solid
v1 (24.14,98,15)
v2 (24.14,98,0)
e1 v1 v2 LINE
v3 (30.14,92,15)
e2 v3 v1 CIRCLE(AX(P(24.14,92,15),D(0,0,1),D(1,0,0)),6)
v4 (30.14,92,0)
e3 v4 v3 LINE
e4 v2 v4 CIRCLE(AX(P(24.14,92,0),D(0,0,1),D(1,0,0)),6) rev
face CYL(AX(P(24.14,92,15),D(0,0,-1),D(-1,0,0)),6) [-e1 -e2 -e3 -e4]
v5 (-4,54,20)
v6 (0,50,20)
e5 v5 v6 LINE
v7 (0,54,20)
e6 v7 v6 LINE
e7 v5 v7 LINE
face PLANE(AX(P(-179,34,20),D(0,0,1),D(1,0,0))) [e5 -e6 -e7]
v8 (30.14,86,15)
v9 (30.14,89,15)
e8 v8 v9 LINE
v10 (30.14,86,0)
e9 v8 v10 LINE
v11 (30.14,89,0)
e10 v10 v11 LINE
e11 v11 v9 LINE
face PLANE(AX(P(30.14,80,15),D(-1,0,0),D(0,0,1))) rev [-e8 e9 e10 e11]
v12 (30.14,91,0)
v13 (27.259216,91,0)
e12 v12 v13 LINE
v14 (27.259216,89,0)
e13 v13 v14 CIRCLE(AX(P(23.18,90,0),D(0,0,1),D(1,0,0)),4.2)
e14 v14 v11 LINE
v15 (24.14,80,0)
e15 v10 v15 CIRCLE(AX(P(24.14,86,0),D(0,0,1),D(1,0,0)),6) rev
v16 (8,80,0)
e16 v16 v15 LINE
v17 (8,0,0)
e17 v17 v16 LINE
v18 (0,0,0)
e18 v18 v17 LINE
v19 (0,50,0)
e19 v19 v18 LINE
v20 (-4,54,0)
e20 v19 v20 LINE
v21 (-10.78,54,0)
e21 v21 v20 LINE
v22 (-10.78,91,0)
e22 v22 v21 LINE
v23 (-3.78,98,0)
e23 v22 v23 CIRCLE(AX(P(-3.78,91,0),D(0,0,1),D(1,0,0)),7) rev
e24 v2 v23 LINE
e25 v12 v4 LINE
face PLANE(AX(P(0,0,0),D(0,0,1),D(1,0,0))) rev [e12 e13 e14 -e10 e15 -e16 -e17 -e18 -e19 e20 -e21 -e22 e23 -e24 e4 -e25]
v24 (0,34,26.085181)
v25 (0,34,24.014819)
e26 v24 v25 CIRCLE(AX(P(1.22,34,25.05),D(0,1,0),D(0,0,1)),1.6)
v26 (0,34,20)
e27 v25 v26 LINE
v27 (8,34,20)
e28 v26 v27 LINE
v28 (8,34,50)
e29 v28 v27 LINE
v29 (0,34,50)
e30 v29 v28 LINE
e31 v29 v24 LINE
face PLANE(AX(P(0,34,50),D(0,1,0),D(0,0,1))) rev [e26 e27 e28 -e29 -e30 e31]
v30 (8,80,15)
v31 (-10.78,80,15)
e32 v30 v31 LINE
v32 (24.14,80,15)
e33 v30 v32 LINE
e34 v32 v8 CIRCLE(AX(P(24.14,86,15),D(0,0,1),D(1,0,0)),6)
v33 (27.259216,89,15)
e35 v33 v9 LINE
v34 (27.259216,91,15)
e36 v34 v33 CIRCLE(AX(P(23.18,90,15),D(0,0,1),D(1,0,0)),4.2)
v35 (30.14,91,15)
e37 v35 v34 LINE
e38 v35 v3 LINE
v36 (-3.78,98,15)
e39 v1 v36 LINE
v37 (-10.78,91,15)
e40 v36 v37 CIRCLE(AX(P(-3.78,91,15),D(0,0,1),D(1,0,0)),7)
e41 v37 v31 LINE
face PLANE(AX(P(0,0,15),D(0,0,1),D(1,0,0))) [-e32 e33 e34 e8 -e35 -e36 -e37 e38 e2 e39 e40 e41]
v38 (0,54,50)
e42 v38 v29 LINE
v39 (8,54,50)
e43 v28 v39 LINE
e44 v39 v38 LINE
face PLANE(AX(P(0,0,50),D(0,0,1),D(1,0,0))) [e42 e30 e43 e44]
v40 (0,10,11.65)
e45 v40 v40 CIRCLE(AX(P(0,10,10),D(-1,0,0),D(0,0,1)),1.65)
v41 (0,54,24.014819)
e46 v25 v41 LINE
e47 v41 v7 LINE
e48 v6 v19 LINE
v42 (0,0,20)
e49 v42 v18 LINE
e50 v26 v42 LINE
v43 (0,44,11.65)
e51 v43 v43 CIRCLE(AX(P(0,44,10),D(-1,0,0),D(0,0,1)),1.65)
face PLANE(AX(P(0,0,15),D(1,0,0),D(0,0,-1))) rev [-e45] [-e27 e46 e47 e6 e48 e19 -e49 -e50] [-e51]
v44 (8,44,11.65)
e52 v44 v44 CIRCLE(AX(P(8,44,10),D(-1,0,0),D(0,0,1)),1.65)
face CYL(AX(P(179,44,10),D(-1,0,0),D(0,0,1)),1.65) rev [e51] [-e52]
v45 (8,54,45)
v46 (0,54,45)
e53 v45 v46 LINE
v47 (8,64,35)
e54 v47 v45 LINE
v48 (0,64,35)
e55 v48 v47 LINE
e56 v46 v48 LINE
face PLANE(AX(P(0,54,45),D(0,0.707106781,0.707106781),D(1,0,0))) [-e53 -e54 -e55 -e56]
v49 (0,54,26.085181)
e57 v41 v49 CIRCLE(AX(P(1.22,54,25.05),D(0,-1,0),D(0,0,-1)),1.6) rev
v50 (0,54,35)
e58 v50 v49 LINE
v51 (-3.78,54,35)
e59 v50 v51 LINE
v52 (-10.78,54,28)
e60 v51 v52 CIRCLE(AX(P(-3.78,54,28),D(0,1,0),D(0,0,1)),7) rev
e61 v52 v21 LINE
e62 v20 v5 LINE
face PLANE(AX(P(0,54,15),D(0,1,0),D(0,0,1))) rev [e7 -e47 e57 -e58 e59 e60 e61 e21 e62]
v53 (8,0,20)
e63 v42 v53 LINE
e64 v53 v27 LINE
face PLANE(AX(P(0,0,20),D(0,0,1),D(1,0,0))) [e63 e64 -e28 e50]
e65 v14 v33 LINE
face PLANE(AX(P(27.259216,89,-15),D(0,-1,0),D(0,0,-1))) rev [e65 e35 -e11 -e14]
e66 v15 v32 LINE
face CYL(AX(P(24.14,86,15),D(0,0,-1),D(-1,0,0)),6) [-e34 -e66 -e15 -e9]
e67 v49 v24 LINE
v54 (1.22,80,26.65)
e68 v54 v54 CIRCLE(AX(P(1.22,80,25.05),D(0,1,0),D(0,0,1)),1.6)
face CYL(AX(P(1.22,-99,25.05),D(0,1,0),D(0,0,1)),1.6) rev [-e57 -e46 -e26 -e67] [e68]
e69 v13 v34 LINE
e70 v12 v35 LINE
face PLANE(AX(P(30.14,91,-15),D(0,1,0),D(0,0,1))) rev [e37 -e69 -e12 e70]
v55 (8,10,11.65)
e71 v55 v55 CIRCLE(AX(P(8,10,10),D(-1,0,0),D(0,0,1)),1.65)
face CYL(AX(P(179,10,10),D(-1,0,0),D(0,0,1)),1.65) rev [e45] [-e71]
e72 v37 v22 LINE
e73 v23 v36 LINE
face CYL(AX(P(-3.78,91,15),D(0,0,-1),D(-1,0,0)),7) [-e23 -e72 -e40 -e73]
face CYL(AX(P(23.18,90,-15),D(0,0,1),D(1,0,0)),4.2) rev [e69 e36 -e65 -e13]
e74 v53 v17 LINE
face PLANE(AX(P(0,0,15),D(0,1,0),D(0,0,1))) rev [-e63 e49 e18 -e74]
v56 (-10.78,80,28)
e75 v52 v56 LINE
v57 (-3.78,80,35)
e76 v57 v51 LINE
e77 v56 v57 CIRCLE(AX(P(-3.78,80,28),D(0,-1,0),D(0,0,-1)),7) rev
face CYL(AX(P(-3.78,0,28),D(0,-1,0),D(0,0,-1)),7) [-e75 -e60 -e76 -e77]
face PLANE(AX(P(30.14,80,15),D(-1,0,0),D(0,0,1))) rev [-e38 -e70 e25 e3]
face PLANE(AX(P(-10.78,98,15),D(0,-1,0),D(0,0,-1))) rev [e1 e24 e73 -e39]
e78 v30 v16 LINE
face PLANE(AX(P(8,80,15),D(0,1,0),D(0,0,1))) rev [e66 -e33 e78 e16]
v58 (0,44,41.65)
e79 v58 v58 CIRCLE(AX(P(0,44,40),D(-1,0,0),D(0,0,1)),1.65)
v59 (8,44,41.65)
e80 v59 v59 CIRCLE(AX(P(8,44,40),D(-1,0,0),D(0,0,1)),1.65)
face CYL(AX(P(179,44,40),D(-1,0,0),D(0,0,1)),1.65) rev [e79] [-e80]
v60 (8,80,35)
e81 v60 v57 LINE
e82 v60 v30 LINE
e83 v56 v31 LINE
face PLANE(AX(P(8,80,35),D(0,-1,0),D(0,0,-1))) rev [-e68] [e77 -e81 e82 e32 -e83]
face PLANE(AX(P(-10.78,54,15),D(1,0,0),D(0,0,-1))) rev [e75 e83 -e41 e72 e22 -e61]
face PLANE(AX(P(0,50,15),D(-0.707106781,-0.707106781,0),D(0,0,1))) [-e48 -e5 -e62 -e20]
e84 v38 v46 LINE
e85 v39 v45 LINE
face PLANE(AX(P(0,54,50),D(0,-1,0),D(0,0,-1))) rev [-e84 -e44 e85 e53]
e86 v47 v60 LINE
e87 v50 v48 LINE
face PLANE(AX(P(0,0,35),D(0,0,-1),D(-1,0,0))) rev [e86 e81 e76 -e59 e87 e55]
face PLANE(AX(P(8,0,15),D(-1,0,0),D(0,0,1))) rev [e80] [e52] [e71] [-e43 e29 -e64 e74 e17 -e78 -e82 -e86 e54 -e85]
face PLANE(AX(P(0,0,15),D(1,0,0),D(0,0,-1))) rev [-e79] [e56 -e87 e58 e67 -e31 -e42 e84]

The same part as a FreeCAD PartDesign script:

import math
import FreeCAD as App
import Part
import Sketcher


def edges_at(feature, points):
    """Names of the edges that pass closest to the given points."""
    edges = feature.Shape.Edges
    near = lambda p: min(range(len(edges)), key=lambda i: edges[i].distToShape(Part.Vertex(*p))[0])
    return sorted({f"Edge{near(p) + 1}" for p in points})


def add_polygon(sketch, points):
    """Adds a closed chain of lines whose ends are joined by coincident constraints."""
    first, n = sketch.GeometryCount, len(points)
    for a, b in zip(points, points[1:] + points[:1]):
        sketch.addGeometry(Part.LineSegment(App.Vector(*a, 0), App.Vector(*b, 0)), False)
    for i in range(n):
        sketch.addConstraint(Sketcher.Constraint("Coincident", first + i, 2, first + (i + 1) % n, 1))

doc = App.newDocument("Part")
body = doc.addObject("PartDesign::Body", "Body")

# Sketch on XY plane
sketch1 = body.newObject("Sketcher::SketchObject", "Sketch")
sketch1.AttachmentSupport = (doc.getObject("XY_Plane"), [""])
sketch1.MapMode = "FlatFace"
add_polygon(sketch1, [(0, 0), (8, 0), (8, 80), (30.14, 80), (30.14, 98), (-10.78, 98), (-10.78, 54), (0, 54)])  # lines 0-7
sketch1.addConstraint(Sketcher.Constraint("Horizontal", 0))
sketch1.addConstraint(Sketcher.Constraint("Vertical", 1))
sketch1.addConstraint(Sketcher.Constraint("Horizontal", 2))
sketch1.addConstraint(Sketcher.Constraint("Vertical", 3))
sketch1.addConstraint(Sketcher.Constraint("Horizontal", 4))
sketch1.addConstraint(Sketcher.Constraint("Vertical", 5))
sketch1.addConstraint(Sketcher.Constraint("Horizontal", 6))
sketch1.addConstraint(Sketcher.Constraint("Vertical", 7))
sketch1.addConstraint(Sketcher.Constraint("Coincident", 7, 2, -1, 1))
sketch1.addConstraint(Sketcher.Constraint("DistanceX", 0, 1, 0, 2, 8.0))
sketch1.addConstraint(Sketcher.Constraint("DistanceY", 1, 1, 1, 2, 80.0))
sketch1.addConstraint(Sketcher.Constraint("DistanceY", 3, 1, 3, 2, 18.0))
sketch1.addConstraint(Sketcher.Constraint("DistanceY", 5, 2, 5, 1, 44.0))
sketch1.addConstraint(Sketcher.Constraint("DistanceX", 2, 1, 2, 2, 22.14))
sketch1.addConstraint(Sketcher.Constraint("DistanceX", 4, 2, 4, 1, 40.92))
pad1 = body.newObject("PartDesign::Pad", "Pad")
pad1.Profile = sketch1
pad1.Length = 15

# Sketch on XY plane
sketch2 = body.newObject("Sketcher::SketchObject", "Sketch001")
sketch2.AttachmentSupport = (doc.getObject("XY_Plane"), [""])
sketch2.MapMode = "FlatFace"
sketch2.AttachmentOffset = App.Placement(App.Vector(0, 0, 15), App.Rotation())
add_polygon(sketch2, [(-10.78, 80), (-10.78, 54), (8, 54), (8, 80)])  # lines 0-3
sketch2.addConstraint(Sketcher.Constraint("Vertical", 0))
sketch2.addConstraint(Sketcher.Constraint("Horizontal", 1))
sketch2.addConstraint(Sketcher.Constraint("Vertical", 2))
sketch2.addConstraint(Sketcher.Constraint("Horizontal", 3))
sketch2.addConstraint(Sketcher.Constraint("DistanceY", 0, 2, 0, 1, 26.0))
sketch2.addConstraint(Sketcher.Constraint("DistanceY", -1, 1, 0, 2, 54.0))
sketch2.addConstraint(Sketcher.Constraint("DistanceX", -1, 1, 1, 2, 8.0))
sketch2.addConstraint(Sketcher.Constraint("DistanceX", 1, 1, 1, 2, 18.78))
pad2 = body.newObject("PartDesign::Pad", "Pad001")
pad2.Profile = sketch2
pad2.Length = 20

# Sketch on XY plane
sketch3 = body.newObject("Sketcher::SketchObject", "Sketch002")
sketch3.AttachmentSupport = (doc.getObject("XY_Plane"), [""])
sketch3.MapMode = "FlatFace"
sketch3.AttachmentOffset = App.Placement(App.Vector(0, 0, 15), App.Rotation())
add_polygon(sketch3, [(0, 54), (0, 0), (8, 0), (8, 54)])  # lines 0-3
sketch3.addConstraint(Sketcher.Constraint("Vertical", 0))
sketch3.addConstraint(Sketcher.Constraint("Horizontal", 1))
sketch3.addConstraint(Sketcher.Constraint("Vertical", 2))
sketch3.addConstraint(Sketcher.Constraint("Horizontal", 3))
sketch3.addConstraint(Sketcher.Constraint("Coincident", 0, 2, -1, 1))
sketch3.addConstraint(Sketcher.Constraint("DistanceX", 1, 1, 1, 2, 8.0))
sketch3.addConstraint(Sketcher.Constraint("DistanceY", 0, 2, 0, 1, 54.0))
pad3 = body.newObject("PartDesign::Pad", "Pad002")
pad3.Profile = sketch3
pad3.Length = 5

# Sketch on XY plane
sketch4 = body.newObject("Sketcher::SketchObject", "Sketch003")
sketch4.AttachmentSupport = (doc.getObject("XY_Plane"), [""])
sketch4.MapMode = "FlatFace"
sketch4.AttachmentOffset = App.Placement(App.Vector(0, 0, 20), App.Rotation())
add_polygon(sketch4, [(0, 54), (0, 34), (8, 34), (8, 54)])  # lines 0-3
sketch4.addConstraint(Sketcher.Constraint("Vertical", 0))
sketch4.addConstraint(Sketcher.Constraint("Horizontal", 1))
sketch4.addConstraint(Sketcher.Constraint("Vertical", 2))
sketch4.addConstraint(Sketcher.Constraint("Horizontal", 3))
sketch4.addConstraint(Sketcher.Constraint("PointOnObject", 0, 2, -2))
sketch4.addConstraint(Sketcher.Constraint("DistanceX", 1, 1, 1, 2, 8.0))
sketch4.addConstraint(Sketcher.Constraint("DistanceY", 0, 2, 0, 1, 20.0))
sketch4.addConstraint(Sketcher.Constraint("DistanceY", -1, 1, 0, 2, 34.0))
pad4 = body.newObject("PartDesign::Pad", "Pad003")
pad4.Profile = sketch4
pad4.Length = 30

# Sketch on XY plane
sketch5 = body.newObject("Sketcher::SketchObject", "Sketch004")
sketch5.AttachmentSupport = (doc.getObject("XY_Plane"), [""])
sketch5.MapMode = "FlatFace"
sketch5.AttachmentOffset = App.Placement(App.Vector(0, 0, 15), App.Rotation())
sketch5.addGeometry(Part.LineSegment(App.Vector(30.14, 91, 0), App.Vector(27.259216, 91, 0)), False)
sketch5.addGeometry(Part.ArcOfCircle(Part.Circle(App.Vector(23.18, 90, 0), App.Vector(0, 0, 1), 4.2), math.radians(13.774147), math.radians(346.225853)), False)
sketch5.addGeometry(Part.LineSegment(App.Vector(27.259216, 89, 0), App.Vector(30.14, 89, 0)), False)
sketch5.addGeometry(Part.LineSegment(App.Vector(30.14, 89, 0), App.Vector(30.14, 91, 0)), False)
sketch5.addConstraint(Sketcher.Constraint("Coincident", 0, 2, 1, 1))
sketch5.addConstraint(Sketcher.Constraint("Coincident", 1, 2, 2, 1))
sketch5.addConstraint(Sketcher.Constraint("Coincident", 2, 2, 3, 1))
sketch5.addConstraint(Sketcher.Constraint("Coincident", 3, 2, 0, 1))
sketch5.addConstraint(Sketcher.Constraint("Horizontal", 0))
sketch5.addConstraint(Sketcher.Constraint("Horizontal", 2))
sketch5.addConstraint(Sketcher.Constraint("Vertical", 3))
sketch5.addConstraint(Sketcher.Constraint("Vertical", 0, 2, 1, 2))
sketch5.addConstraint(Sketcher.Constraint("Radius", 1, 4.2))
sketch5.addConstraint(Sketcher.Constraint("DistanceY", 3, 1, 3, 2, 2.0))
sketch5.addConstraint(Sketcher.Constraint("DistanceY", -1, 1, 1, 3, 90.0))
sketch5.addConstraint(Sketcher.Constraint("DistanceX", -1, 1, 1, 3, 23.18))
sketch5.addConstraint(Sketcher.Constraint("DistanceX", -1, 1, 2, 2, 30.14))
pocket1 = body.newObject("PartDesign::Pocket", "Pocket")
pocket1.Profile = sketch5
pocket1.Length = 30
doc.recompute()

fillet = body.newObject("PartDesign::Fillet", "Fillet")
fillet.Base = (pocket1, edges_at(pocket1, [(30.14, 98, 7.5)]))
fillet.Radius = 6
doc.recompute()

fillet2 = body.newObject("PartDesign::Fillet", "Fillet001")
fillet2.Base = (fillet, edges_at(fillet, [(30.14, 80, 7.5)]))
fillet2.Radius = 6
doc.recompute()

fillet3 = body.newObject("PartDesign::Fillet", "Fillet002")
fillet3.Base = (fillet2, edges_at(fillet2, [(-10.78, 98, 7.5)]))
fillet3.Radius = 7
doc.recompute()

fillet4 = body.newObject("PartDesign::Fillet", "Fillet003")
fillet4.Base = (fillet3, edges_at(fillet3, [(-10.78, 67, 35)]))
fillet4.Radius = 7
doc.recompute()

chamfer = body.newObject("PartDesign::Chamfer", "Chamfer")
chamfer.Base = (fillet4, edges_at(fillet4, [(4, 54, 35)]))
chamfer.Size = 10
doc.recompute()

chamfer2 = body.newObject("PartDesign::Chamfer", "Chamfer001")
chamfer2.Base = (chamfer, edges_at(chamfer, [(0, 54, 17.5)]))
chamfer2.Size = 4

# Sketch on XZ plane
sketch6 = body.newObject("Sketcher::SketchObject", "Sketch005")
sketch6.AttachmentSupport = (doc.getObject("XZ_Plane"), [""])
sketch6.MapMode = "FlatFace"
sketch6.AttachmentOffset = App.Placement(App.Vector(0, 0, -80), App.Rotation())
sketch6.addGeometry(Part.Circle(App.Vector(1.22, 25.05, 0), App.Vector(0, 0, 1), 1.6), False)
sketch6.addConstraint(Sketcher.Constraint("Diameter", 0, 3.2))
sketch6.addConstraint(Sketcher.Constraint("DistanceX", -1, 1, 0, 3, 1.22))
sketch6.addConstraint(Sketcher.Constraint("DistanceY", -1, 1, 0, 3, 25.05))
pocket2 = body.newObject("PartDesign::Pocket", "Pocket001")
pocket2.Profile = sketch6
pocket2.Length = 179
pocket2.Reversed = True

# Sketch on YZ plane
sketch7 = body.newObject("Sketcher::SketchObject", "Sketch006")
sketch7.AttachmentSupport = (doc.getObject("YZ_Plane"), [""])
sketch7.MapMode = "FlatFace"
add_polygon(sketch7, [(54, 20), (34, 20), (34, 40.537192), (54, 40.537192)])  # lines 0-3
sketch7.addConstraint(Sketcher.Constraint("Horizontal", 0))
sketch7.addConstraint(Sketcher.Constraint("Vertical", 1))
sketch7.addConstraint(Sketcher.Constraint("Horizontal", 2))
sketch7.addConstraint(Sketcher.Constraint("Vertical", 3))
sketch7.addConstraint(Sketcher.Constraint("DistanceX", 0, 2, 0, 1, 20.0))
sketch7.addConstraint(Sketcher.Constraint("DistanceX", -1, 1, 0, 2, 34.0))
sketch7.addConstraint(Sketcher.Constraint("DistanceY", -1, 1, 0, 2, 20.0))
sketch7.addConstraint(Sketcher.Constraint("DistanceY", 1, 1, 1, 2, 20.537192))
pocket3 = body.newObject("PartDesign::Pocket", "Pocket002")
pocket3.Profile = sketch7
pocket3.Length = 179

# Sketch on YZ plane
sketch8 = body.newObject("Sketcher::SketchObject", "Sketch007")
sketch8.AttachmentSupport = (doc.getObject("YZ_Plane"), [""])
sketch8.MapMode = "FlatFace"
sketch8.addGeometry(Part.Circle(App.Vector(44, 40, 0), App.Vector(0, 0, 1), 1.65), False)
sketch8.addGeometry(Part.Circle(App.Vector(10, 10, 0), App.Vector(0, 0, 1), 1.65), False)
sketch8.addGeometry(Part.Circle(App.Vector(44, 10, 0), App.Vector(0, 0, 1), 1.65), False)
sketch8.addConstraint(Sketcher.Constraint("Equal", 0, 1))
sketch8.addConstraint(Sketcher.Constraint("Equal", 1, 2))
sketch8.addConstraint(Sketcher.Constraint("Horizontal", 1, 3, 2, 3))
sketch8.addConstraint(Sketcher.Constraint("Vertical", 0, 3, 2, 3))
sketch8.addConstraint(Sketcher.Constraint("Diameter", 0, 3.3))
sketch8.addConstraint(Sketcher.Constraint("DistanceX", -1, 1, 0, 3, 44.0))
sketch8.addConstraint(Sketcher.Constraint("DistanceY", -1, 1, 0, 3, 40.0))
sketch8.addConstraint(Sketcher.Constraint("DistanceX", -1, 1, 1, 3, 10.0))
sketch8.addConstraint(Sketcher.Constraint("DistanceY", -1, 1, 1, 3, 10.0))
pocket4 = body.newObject("PartDesign::Pocket", "Pocket003")
pocket4.Profile = sketch8
pocket4.Length = 179
pocket4.Reversed = True

doc.recompute()
